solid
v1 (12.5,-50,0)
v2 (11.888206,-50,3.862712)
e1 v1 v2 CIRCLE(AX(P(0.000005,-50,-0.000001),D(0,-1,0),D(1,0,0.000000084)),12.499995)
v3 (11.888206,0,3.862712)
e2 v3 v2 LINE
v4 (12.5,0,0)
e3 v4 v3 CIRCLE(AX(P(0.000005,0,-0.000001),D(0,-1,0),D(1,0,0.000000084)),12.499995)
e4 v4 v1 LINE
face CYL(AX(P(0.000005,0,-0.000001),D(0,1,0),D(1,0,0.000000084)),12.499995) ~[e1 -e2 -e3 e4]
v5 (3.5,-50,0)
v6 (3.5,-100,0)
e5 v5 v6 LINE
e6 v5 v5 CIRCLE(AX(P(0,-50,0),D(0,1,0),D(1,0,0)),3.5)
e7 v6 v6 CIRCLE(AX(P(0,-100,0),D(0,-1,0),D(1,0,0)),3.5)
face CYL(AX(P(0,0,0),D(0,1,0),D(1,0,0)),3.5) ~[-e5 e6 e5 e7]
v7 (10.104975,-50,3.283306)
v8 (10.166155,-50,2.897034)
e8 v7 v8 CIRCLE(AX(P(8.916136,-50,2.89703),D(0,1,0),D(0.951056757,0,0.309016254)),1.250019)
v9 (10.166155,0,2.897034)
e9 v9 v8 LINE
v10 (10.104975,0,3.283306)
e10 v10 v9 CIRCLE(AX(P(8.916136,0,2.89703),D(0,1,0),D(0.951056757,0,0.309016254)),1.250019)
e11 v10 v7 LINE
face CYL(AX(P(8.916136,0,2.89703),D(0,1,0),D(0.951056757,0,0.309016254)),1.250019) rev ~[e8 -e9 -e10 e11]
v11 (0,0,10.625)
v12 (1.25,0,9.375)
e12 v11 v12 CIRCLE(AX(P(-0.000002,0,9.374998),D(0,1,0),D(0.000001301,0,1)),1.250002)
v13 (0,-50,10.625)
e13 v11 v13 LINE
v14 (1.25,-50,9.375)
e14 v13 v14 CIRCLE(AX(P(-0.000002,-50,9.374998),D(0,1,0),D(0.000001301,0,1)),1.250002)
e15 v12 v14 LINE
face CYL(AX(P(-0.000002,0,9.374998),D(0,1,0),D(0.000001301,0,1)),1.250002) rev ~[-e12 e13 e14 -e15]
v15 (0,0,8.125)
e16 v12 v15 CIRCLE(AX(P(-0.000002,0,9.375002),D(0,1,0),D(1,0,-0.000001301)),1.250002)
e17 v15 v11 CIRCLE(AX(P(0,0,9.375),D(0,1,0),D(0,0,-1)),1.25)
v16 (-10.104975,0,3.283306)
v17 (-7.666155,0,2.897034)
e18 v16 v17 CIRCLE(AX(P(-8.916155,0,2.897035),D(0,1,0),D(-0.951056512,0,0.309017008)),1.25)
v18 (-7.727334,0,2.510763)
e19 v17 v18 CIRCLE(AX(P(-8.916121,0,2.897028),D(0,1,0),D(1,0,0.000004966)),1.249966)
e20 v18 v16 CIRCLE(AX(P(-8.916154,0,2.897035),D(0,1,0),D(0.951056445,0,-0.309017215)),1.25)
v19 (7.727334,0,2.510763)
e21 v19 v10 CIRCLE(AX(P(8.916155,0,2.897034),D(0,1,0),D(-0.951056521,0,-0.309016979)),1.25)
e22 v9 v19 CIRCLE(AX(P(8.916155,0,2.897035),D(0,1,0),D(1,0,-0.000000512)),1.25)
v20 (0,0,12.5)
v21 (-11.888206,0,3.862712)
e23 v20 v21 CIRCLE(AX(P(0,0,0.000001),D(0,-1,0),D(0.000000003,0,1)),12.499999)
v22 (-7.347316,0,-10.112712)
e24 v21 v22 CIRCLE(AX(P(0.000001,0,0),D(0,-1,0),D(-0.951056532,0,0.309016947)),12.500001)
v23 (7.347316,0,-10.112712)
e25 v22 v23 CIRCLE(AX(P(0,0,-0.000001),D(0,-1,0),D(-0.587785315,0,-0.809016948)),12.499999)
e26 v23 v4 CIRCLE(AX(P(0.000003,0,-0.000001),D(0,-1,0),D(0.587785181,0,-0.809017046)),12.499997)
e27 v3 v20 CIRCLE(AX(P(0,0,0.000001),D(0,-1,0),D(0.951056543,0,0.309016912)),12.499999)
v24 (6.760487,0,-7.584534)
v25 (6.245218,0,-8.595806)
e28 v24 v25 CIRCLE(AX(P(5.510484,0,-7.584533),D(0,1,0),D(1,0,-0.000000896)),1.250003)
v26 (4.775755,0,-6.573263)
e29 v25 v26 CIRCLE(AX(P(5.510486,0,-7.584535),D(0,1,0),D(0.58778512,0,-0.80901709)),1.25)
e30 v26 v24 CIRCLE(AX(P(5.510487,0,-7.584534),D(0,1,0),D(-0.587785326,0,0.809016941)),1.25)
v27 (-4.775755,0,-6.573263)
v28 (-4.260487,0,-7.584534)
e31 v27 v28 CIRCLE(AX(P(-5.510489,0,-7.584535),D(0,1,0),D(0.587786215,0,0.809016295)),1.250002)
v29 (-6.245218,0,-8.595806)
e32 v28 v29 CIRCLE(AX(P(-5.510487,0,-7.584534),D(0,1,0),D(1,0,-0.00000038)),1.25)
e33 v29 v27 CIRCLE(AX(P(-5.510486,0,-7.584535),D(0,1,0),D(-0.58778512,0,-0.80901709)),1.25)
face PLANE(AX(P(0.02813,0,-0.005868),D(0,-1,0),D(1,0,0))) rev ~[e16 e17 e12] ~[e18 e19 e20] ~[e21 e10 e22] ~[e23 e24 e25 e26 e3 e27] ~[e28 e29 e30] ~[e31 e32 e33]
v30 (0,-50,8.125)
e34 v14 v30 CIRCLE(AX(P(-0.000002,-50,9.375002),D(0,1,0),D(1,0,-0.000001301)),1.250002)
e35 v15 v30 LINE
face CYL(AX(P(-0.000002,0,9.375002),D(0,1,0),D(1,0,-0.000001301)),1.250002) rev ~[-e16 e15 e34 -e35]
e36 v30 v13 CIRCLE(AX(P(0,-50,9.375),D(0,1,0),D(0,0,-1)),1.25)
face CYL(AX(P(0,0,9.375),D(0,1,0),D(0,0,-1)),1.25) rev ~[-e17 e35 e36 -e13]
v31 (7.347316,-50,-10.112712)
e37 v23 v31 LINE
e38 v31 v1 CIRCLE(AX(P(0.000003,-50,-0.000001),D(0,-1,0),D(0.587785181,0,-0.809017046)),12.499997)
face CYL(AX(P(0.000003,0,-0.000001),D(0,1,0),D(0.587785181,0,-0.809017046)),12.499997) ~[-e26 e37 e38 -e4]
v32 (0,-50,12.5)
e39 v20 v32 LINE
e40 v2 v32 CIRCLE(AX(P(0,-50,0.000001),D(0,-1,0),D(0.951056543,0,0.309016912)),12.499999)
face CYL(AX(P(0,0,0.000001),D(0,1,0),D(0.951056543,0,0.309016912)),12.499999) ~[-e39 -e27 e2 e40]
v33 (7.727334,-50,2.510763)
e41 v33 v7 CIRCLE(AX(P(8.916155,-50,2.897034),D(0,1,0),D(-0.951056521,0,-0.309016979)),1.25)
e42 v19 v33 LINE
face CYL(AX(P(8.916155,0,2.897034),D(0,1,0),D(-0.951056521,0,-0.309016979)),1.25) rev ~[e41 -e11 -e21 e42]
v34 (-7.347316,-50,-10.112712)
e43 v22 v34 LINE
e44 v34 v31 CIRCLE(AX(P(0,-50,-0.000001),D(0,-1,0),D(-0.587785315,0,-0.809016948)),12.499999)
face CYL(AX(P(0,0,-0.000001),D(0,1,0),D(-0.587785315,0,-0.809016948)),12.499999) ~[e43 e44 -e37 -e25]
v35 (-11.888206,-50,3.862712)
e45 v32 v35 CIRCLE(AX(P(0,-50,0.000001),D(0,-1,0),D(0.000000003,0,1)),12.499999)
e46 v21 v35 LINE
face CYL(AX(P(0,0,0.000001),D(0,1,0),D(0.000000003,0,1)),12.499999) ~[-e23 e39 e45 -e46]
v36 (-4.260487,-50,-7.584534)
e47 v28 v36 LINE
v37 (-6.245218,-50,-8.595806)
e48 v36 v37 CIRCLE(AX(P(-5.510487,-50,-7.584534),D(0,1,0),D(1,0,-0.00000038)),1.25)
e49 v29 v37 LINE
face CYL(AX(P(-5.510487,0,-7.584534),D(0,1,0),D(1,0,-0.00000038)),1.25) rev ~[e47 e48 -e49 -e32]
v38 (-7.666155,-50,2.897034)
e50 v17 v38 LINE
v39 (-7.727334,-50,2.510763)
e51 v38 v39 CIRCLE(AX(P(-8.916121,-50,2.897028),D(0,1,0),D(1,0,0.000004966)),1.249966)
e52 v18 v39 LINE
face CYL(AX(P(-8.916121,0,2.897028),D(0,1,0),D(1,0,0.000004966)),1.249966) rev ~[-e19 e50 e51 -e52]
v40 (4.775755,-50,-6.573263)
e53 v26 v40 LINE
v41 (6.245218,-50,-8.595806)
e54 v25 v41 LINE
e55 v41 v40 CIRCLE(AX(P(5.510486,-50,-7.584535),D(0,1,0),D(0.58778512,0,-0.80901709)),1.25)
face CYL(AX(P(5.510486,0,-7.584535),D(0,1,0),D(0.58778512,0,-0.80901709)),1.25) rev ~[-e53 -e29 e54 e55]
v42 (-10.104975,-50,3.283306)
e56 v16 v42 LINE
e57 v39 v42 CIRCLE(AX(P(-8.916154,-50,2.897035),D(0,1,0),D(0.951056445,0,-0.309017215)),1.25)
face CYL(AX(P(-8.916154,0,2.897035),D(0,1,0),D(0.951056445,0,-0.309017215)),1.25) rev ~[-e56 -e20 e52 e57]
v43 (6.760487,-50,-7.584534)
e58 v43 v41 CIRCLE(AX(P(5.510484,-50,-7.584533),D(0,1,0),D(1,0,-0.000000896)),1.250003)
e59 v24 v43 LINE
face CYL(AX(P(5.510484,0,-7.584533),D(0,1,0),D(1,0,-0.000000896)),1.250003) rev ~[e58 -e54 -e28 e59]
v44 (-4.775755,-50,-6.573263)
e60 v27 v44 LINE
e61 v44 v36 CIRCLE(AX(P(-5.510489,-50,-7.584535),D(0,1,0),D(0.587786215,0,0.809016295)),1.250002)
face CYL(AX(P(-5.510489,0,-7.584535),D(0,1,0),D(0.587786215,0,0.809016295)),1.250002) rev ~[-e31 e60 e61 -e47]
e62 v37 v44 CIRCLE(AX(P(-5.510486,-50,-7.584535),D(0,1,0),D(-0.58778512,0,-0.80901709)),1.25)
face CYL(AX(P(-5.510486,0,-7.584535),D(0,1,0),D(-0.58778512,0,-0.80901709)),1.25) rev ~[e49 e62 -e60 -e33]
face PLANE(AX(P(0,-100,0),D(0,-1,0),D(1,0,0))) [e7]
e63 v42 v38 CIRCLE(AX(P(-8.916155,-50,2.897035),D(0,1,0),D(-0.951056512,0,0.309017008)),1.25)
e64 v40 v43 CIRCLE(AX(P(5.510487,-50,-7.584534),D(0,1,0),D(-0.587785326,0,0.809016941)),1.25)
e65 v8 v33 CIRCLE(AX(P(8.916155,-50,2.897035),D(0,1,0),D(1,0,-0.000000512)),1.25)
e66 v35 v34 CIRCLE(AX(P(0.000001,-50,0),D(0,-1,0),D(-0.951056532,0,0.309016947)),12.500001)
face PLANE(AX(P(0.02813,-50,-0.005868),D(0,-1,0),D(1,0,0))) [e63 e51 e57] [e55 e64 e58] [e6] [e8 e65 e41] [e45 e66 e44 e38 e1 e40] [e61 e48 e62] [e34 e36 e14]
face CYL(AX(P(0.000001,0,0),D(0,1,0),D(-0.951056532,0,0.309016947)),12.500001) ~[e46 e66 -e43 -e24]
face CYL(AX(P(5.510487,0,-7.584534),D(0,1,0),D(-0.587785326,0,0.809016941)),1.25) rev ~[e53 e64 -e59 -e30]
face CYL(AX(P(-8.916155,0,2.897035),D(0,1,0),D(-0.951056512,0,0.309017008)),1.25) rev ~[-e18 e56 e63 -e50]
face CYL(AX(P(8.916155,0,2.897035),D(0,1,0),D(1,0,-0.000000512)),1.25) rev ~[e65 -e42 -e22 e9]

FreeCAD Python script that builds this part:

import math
import FreeCAD as App
import Part
import Sketcher
from FreeCAD import Vector
Q = App.Units.Quantity

doc = App.newDocument("Part")
body = doc.addObject("PartDesign::Body", "Body")

# Sketch on XZ plane
sketch1 = body.newObject("Sketcher::SketchObject", "Sketch")
sketch1.AttachmentSupport = (doc.getObject("XZ_Plane"), [""])
sketch1.MapMode = "FlatFace"
sketch1.addGeometry(Part.Circle(Vector(0, 0, 0), Vector(0, 0, 1), 3.5), False)
sketch1.addConstraint(Sketcher.Constraint("Coincident", 0, 3, -1, 1))
sketch1.addConstraint(Sketcher.Constraint("Diameter", 0, Q("7 mm")))
pad1 = body.newObject("PartDesign::Pad", "Pad")
pad1.Profile = sketch1
pad1.Length = 100

# Sketch on XZ plane
sketch2 = body.newObject("Sketcher::SketchObject", "Sketch001")
sketch2.AttachmentSupport = (doc.getObject("XZ_Plane"), [""])
sketch2.MapMode = "FlatFace"
sketch2.addGeometry(Part.ArcOfCircle(Part.Circle(Vector(0.000003, -0.000001, 0), Vector(0, 0, 1), 12.499997), math.radians(-54.000005), math.radians(0.000006)), False)
sketch2.addGeometry(Part.ArcOfCircle(Part.Circle(Vector(0.000005, -0.000001, 0), Vector(0, 0, 1), 12.499995), math.radians(0.000005), math.radians(18.00001)), False)
sketch2.addGeometry(Part.ArcOfCircle(Part.Circle(Vector(0, 0.000001, 0), Vector(0, 0, 1), 12.499999), math.radians(17.999995), math.radians(90)), False)
sketch2.addGeometry(Part.ArcOfCircle(Part.Circle(Vector(0, 0.000001, 0), Vector(0, 0, 1), 12.499999), math.radians(90), math.radians(162.000005)), False)
sketch2.addGeometry(Part.ArcOfCircle(Part.Circle(Vector(0.000001, 0, 0), Vector(0, 0, 1), 12.500001), math.radians(162.000003), math.radians(233.999993)), False)
sketch2.addGeometry(Part.ArcOfCircle(Part.Circle(Vector(0, -0.000001, 0), Vector(0, 0, 1), 12.499999), math.radians(-126.000004), math.radians(-53.999996)), False)
sketch2.addGeometry(Part.ArcOfCircle(Part.Circle(Vector(-5.510489, -7.584535, 0), Vector(0, 0, 1), 1.250002), math.radians(0.00004), math.radians(53.999932)), False)
sketch2.addGeometry(Part.ArcOfCircle(Part.Circle(Vector(-5.510487, -7.584534, 0), Vector(0, 0, 1), 1.25), math.radians(-125.99993), math.radians(-0.000022)), False)
sketch2.addGeometry(Part.ArcOfCircle(Part.Circle(Vector(-5.510486, -7.584535, 0), Vector(0, 0, 1), 1.25), math.radians(54.000009), math.radians(234.000009)), False)
sketch2.addGeometry(Part.ArcOfCircle(Part.Circle(Vector(5.510487, -7.584534, 0), Vector(0, 0, 1), 1.25), math.radians(0.000016), math.radians(126.000005)), False)
sketch2.addGeometry(Part.ArcOfCircle(Part.Circle(Vector(5.510484, -7.584533, 0), Vector(0, 0, 1), 1.250003), math.radians(-53.999965), math.radians(-0.000051)), False)
sketch2.addGeometry(Part.ArcOfCircle(Part.Circle(Vector(5.510486, -7.584535, 0), Vector(0, 0, 1), 1.25), math.radians(125.999991), math.radians(305.999991)), False)
sketch2.addGeometry(Part.ArcOfCircle(Part.Circle(Vector(-8.916121, 2.897028, 0), Vector(0, 0, 1), 1.249966), math.radians(-18.000193), math.radians(0.000285)), False)
sketch2.addGeometry(Part.ArcOfCircle(Part.Circle(Vector(-8.916154, 2.897035, 0), Vector(0, 0, 1), 1.25), math.radians(161.999987), math.radians(341.999987)), False)
sketch2.addGeometry(Part.ArcOfCircle(Part.Circle(Vector(-8.916155, 2.897035, 0), Vector(0, 0, 1), 1.25), math.radians(-0.000039), math.radians(161.999999)), False)
sketch2.addGeometry(Part.ArcOfCircle(Part.Circle(Vector(-0.000002, 9.375002, 0), Vector(0, 0, 1), 1.250002), math.radians(-89.999925), math.radians(-0.000075)), False)
sketch2.addGeometry(Part.ArcOfCircle(Part.Circle(Vector(0, 9.375, 0), Vector(0, 0, 1), 1.25), math.radians(90), math.radians(270)), False)
sketch2.addGeometry(Part.ArcOfCircle(Part.Circle(Vector(-0.000002, 9.374998, 0), Vector(0, 0, 1), 1.250002), math.radians(0.000075), math.radians(89.999925)), False)
sketch2.addGeometry(Part.ArcOfCircle(Part.Circle(Vector(8.916155, 2.897035, 0), Vector(0, 0, 1), 1.25), math.radians(-161.999984), math.radians(-0.000029)), False)
sketch2.addGeometry(Part.ArcOfCircle(Part.Circle(Vector(8.916155, 2.897034, 0), Vector(0, 0, 1), 1.25), math.radians(18.000027), math.radians(197.999999)), False)
sketch2.addGeometry(Part.ArcOfCircle(Part.Circle(Vector(8.916136, 2.89703, 0), Vector(0, 0, 1), 1.250019), math.radians(0.000197), math.radians(17.999955)), False)
sketch2.addConstraint(Sketcher.Constraint("Coincident", 0, 2, 1, 1))
sketch2.addConstraint(Sketcher.Constraint("Coincident", 1, 2, 2, 1))
sketch2.addConstraint(Sketcher.Constraint("Coincident", 2, 2, 3, 1))
sketch2.addConstraint(Sketcher.Constraint("Coincident", 3, 2, 4, 1))
sketch2.addConstraint(Sketcher.Constraint("Coincident", 4, 2, 5, 1))
sketch2.addConstraint(Sketcher.Constraint("Coincident", 5, 2, 0, 1))
sketch2.addConstraint(Sketcher.Constraint("Coincident", 6, 1, 7, 2))
sketch2.addConstraint(Sketcher.Constraint("Coincident", 7, 1, 8, 2))
sketch2.addConstraint(Sketcher.Constraint("Coincident", 8, 1, 6, 2))
sketch2.addConstraint(Sketcher.Constraint("Coincident", 9, 1, 10, 2))
sketch2.addConstraint(Sketcher.Constraint("Coincident", 10, 1, 11, 2))
sketch2.addConstraint(Sketcher.Constraint("Coincident", 11, 1, 9, 2))
sketch2.addConstraint(Sketcher.Constraint("Coincident", 12, 1, 13, 2))
sketch2.addConstraint(Sketcher.Constraint("Coincident", 13, 1, 14, 2))
sketch2.addConstraint(Sketcher.Constraint("Coincident", 14, 1, 12, 2))
sketch2.addConstraint(Sketcher.Constraint("Coincident", 15, 1, 16, 2))
sketch2.addConstraint(Sketcher.Constraint("Coincident", 16, 1, 17, 2))
sketch2.addConstraint(Sketcher.Constraint("Coincident", 17, 1, 15, 2))
sketch2.addConstraint(Sketcher.Constraint("Coincident", 18, 1, 19, 2))
sketch2.addConstraint(Sketcher.Constraint("Coincident", 19, 1, 20, 2))
sketch2.addConstraint(Sketcher.Constraint("Coincident", 20, 1, 18, 2))
sketch2.addConstraint(Sketcher.Constraint("Coincident", 0, 3, -1, 1))
sketch2.addConstraint(Sketcher.Constraint("Coincident", 1, 3, -1, 1))
sketch2.addConstraint(Sketcher.Constraint("Coincident", 2, 3, -1, 1))
sketch2.addConstraint(Sketcher.Constraint("Coincident", 3, 3, -1, 1))
sketch2.addConstraint(Sketcher.Constraint("Coincident", 4, 3, -1, 1))
sketch2.addConstraint(Sketcher.Constraint("Coincident", 7, 3, 6, 3))
sketch2.addConstraint(Sketcher.Constraint("Coincident", 10, 3, 9, 3))
sketch2.addConstraint(Sketcher.Constraint("Coincident", 14, 3, 13, 3))
sketch2.addConstraint(Sketcher.Constraint("Coincident", 16, 3, 15, 3))
sketch2.addConstraint(Sketcher.Constraint("Coincident", 19, 3, 18, 3))
sketch2.addConstraint(Sketcher.Constraint("PointOnObject", 15, 3, -2))
sketch2.addConstraint(Sketcher.Constraint("PointOnObject", 17, 3, -2))
sketch2.addConstraint(Sketcher.Constraint("PointOnObject", 0, 2, -1))
sketch2.addConstraint(Sketcher.Constraint("PointOnObject", 2, 2, -2))
sketch2.addConstraint(Sketcher.Constraint("PointOnObject", 15, 1, -2))
sketch2.addConstraint(Sketcher.Constraint("PointOnObject", 16, 1, -2))
sketch2.addConstraint(Sketcher.Constraint("Radius", 2, Q("12.499999 mm")))
sketch2.addConstraint(Sketcher.Constraint("Radius", 5, Q("12.499999 mm")))
sketch2.addConstraint(Sketcher.Constraint("Radius", 6, Q("1.250002 mm")))
sketch2.addConstraint(Sketcher.Constraint("Radius", 9, Q("1.25 mm")))
sketch2.addConstraint(Sketcher.Constraint("Radius", 13, Q("1.25 mm")))
sketch2.addConstraint(Sketcher.Constraint("Radius", 15, Q("1.250002 mm")))
sketch2.addConstraint(Sketcher.Constraint("Radius", 18, Q("1.25 mm")))
sketch2.addConstraint(Sketcher.Constraint("Radius", 20, Q("1.250019 mm")))
sketch2.addConstraint(Sketcher.Constraint("DistanceX", 8, 3, 6, 1, Q("1.249999 mm")))
sketch2.addConstraint(Sketcher.Constraint("DistanceX", 11, 3, 9, 1, Q("1.25 mm")))
sketch2.addConstraint(Sketcher.Constraint("DistanceY", 15, 1, 17, 1, Q("1.25 mm")))
sketch2.addConstraint(Sketcher.Constraint("DistanceY", -1, 1, 15, 3, Q("9.375002 mm")))
sketch2.addConstraint(Sketcher.Constraint("Radius", 12, Q("1.249966 mm")))
sketch2.addConstraint(Sketcher.Constraint("DistanceX", 1, 3, 1, 2, Q("11.888201 mm")))
sketch2.addConstraint(Sketcher.Constraint("DistanceX", 18, 1, 20, 3, Q("1.188802 mm")))
sketch2.addConstraint(Sketcher.Constraint("DistanceX", 6, 3, -1, 1, Q("5.510489 mm")))
sketch2.addConstraint(Sketcher.Constraint("DistanceX", 12, 3, -1, 1, Q("8.916121 mm")))
sketch2.addConstraint(Sketcher.Constraint("DistanceY", -1, 1, 20, 3, Q("2.89703 mm")))
sketch2.addConstraint(Sketcher.Constraint("DistanceY", 4, 2, -1, 1, Q("10.112712 mm")))
sketch2.addConstraint(Sketcher.Constraint("DistanceX", 7, 1, -1, 1, Q("6.245218 mm")))
sketch2.addConstraint(Sketcher.Constraint("DistanceX", -1, 1, 10, 1, Q("6.245218 mm")))
sketch2.addConstraint(Sketcher.Constraint("DistanceX", 1, 3, 9, 3, Q("5.510482 mm")))
sketch2.addConstraint(Sketcher.Constraint("DistanceY", 10, 3, 1, 3, Q("7.584532 mm")))
sketch2.addConstraint(Sketcher.Constraint("DistanceY", 5, 3, 12, 3, Q("2.897029 mm")))
sketch2.addConstraint(Sketcher.Constraint("DistanceX", 1, 3, 18, 3, Q("8.91615 mm")))
sketch2.addConstraint(Sketcher.Constraint("DistanceX", 3, 2, 14, 3, Q("2.972051 mm")))
sketch2.addConstraint(Sketcher.Constraint("DistanceY", 4, 2, 7, 3, Q("2.528178 mm")))
sketch2.addConstraint(Sketcher.Constraint("DistanceX", 9, 3, 5, 2, Q("1.836829 mm")))
sketch2.addConstraint(Sketcher.Constraint("DistanceY", 6, 1, 8, 1, Q("1.011271 mm")))
sketch2.addConstraint(Sketcher.Constraint("DistanceY", 7, 3, 8, 1, Q("1.011271 mm")))
sketch2.addConstraint(Sketcher.Constraint("DistanceY", 5, 2, 9, 1, Q("2.528178 mm")))
sketch2.addConstraint(Sketcher.Constraint("DistanceX", 11, 1, 10, 3, Q("0.734729 mm")))
sketch2.addConstraint(Sketcher.Constraint("DistanceX", 13, 3, 12, 1, Q("1.18882 mm")))
sketch2.addConstraint(Sketcher.Constraint("DistanceX", 13, 1, 14, 3, Q("1.18882 mm")))
sketch2.addConstraint(Sketcher.Constraint("DistanceY", 12, 1, 14, 1, Q("0.386271 mm")))
sketch2.addConstraint(Sketcher.Constraint("DistanceX", 18, 3, 19, 1, Q("1.18882 mm")))
sketch2.addConstraint(Sketcher.Constraint("DistanceY", 20, 1, 19, 1, Q("0.386272 mm")))
pad2 = body.newObject("PartDesign::Pad", "Pad001")
pad2.Profile = sketch2
pad2.Length = 50

doc.recompute()
